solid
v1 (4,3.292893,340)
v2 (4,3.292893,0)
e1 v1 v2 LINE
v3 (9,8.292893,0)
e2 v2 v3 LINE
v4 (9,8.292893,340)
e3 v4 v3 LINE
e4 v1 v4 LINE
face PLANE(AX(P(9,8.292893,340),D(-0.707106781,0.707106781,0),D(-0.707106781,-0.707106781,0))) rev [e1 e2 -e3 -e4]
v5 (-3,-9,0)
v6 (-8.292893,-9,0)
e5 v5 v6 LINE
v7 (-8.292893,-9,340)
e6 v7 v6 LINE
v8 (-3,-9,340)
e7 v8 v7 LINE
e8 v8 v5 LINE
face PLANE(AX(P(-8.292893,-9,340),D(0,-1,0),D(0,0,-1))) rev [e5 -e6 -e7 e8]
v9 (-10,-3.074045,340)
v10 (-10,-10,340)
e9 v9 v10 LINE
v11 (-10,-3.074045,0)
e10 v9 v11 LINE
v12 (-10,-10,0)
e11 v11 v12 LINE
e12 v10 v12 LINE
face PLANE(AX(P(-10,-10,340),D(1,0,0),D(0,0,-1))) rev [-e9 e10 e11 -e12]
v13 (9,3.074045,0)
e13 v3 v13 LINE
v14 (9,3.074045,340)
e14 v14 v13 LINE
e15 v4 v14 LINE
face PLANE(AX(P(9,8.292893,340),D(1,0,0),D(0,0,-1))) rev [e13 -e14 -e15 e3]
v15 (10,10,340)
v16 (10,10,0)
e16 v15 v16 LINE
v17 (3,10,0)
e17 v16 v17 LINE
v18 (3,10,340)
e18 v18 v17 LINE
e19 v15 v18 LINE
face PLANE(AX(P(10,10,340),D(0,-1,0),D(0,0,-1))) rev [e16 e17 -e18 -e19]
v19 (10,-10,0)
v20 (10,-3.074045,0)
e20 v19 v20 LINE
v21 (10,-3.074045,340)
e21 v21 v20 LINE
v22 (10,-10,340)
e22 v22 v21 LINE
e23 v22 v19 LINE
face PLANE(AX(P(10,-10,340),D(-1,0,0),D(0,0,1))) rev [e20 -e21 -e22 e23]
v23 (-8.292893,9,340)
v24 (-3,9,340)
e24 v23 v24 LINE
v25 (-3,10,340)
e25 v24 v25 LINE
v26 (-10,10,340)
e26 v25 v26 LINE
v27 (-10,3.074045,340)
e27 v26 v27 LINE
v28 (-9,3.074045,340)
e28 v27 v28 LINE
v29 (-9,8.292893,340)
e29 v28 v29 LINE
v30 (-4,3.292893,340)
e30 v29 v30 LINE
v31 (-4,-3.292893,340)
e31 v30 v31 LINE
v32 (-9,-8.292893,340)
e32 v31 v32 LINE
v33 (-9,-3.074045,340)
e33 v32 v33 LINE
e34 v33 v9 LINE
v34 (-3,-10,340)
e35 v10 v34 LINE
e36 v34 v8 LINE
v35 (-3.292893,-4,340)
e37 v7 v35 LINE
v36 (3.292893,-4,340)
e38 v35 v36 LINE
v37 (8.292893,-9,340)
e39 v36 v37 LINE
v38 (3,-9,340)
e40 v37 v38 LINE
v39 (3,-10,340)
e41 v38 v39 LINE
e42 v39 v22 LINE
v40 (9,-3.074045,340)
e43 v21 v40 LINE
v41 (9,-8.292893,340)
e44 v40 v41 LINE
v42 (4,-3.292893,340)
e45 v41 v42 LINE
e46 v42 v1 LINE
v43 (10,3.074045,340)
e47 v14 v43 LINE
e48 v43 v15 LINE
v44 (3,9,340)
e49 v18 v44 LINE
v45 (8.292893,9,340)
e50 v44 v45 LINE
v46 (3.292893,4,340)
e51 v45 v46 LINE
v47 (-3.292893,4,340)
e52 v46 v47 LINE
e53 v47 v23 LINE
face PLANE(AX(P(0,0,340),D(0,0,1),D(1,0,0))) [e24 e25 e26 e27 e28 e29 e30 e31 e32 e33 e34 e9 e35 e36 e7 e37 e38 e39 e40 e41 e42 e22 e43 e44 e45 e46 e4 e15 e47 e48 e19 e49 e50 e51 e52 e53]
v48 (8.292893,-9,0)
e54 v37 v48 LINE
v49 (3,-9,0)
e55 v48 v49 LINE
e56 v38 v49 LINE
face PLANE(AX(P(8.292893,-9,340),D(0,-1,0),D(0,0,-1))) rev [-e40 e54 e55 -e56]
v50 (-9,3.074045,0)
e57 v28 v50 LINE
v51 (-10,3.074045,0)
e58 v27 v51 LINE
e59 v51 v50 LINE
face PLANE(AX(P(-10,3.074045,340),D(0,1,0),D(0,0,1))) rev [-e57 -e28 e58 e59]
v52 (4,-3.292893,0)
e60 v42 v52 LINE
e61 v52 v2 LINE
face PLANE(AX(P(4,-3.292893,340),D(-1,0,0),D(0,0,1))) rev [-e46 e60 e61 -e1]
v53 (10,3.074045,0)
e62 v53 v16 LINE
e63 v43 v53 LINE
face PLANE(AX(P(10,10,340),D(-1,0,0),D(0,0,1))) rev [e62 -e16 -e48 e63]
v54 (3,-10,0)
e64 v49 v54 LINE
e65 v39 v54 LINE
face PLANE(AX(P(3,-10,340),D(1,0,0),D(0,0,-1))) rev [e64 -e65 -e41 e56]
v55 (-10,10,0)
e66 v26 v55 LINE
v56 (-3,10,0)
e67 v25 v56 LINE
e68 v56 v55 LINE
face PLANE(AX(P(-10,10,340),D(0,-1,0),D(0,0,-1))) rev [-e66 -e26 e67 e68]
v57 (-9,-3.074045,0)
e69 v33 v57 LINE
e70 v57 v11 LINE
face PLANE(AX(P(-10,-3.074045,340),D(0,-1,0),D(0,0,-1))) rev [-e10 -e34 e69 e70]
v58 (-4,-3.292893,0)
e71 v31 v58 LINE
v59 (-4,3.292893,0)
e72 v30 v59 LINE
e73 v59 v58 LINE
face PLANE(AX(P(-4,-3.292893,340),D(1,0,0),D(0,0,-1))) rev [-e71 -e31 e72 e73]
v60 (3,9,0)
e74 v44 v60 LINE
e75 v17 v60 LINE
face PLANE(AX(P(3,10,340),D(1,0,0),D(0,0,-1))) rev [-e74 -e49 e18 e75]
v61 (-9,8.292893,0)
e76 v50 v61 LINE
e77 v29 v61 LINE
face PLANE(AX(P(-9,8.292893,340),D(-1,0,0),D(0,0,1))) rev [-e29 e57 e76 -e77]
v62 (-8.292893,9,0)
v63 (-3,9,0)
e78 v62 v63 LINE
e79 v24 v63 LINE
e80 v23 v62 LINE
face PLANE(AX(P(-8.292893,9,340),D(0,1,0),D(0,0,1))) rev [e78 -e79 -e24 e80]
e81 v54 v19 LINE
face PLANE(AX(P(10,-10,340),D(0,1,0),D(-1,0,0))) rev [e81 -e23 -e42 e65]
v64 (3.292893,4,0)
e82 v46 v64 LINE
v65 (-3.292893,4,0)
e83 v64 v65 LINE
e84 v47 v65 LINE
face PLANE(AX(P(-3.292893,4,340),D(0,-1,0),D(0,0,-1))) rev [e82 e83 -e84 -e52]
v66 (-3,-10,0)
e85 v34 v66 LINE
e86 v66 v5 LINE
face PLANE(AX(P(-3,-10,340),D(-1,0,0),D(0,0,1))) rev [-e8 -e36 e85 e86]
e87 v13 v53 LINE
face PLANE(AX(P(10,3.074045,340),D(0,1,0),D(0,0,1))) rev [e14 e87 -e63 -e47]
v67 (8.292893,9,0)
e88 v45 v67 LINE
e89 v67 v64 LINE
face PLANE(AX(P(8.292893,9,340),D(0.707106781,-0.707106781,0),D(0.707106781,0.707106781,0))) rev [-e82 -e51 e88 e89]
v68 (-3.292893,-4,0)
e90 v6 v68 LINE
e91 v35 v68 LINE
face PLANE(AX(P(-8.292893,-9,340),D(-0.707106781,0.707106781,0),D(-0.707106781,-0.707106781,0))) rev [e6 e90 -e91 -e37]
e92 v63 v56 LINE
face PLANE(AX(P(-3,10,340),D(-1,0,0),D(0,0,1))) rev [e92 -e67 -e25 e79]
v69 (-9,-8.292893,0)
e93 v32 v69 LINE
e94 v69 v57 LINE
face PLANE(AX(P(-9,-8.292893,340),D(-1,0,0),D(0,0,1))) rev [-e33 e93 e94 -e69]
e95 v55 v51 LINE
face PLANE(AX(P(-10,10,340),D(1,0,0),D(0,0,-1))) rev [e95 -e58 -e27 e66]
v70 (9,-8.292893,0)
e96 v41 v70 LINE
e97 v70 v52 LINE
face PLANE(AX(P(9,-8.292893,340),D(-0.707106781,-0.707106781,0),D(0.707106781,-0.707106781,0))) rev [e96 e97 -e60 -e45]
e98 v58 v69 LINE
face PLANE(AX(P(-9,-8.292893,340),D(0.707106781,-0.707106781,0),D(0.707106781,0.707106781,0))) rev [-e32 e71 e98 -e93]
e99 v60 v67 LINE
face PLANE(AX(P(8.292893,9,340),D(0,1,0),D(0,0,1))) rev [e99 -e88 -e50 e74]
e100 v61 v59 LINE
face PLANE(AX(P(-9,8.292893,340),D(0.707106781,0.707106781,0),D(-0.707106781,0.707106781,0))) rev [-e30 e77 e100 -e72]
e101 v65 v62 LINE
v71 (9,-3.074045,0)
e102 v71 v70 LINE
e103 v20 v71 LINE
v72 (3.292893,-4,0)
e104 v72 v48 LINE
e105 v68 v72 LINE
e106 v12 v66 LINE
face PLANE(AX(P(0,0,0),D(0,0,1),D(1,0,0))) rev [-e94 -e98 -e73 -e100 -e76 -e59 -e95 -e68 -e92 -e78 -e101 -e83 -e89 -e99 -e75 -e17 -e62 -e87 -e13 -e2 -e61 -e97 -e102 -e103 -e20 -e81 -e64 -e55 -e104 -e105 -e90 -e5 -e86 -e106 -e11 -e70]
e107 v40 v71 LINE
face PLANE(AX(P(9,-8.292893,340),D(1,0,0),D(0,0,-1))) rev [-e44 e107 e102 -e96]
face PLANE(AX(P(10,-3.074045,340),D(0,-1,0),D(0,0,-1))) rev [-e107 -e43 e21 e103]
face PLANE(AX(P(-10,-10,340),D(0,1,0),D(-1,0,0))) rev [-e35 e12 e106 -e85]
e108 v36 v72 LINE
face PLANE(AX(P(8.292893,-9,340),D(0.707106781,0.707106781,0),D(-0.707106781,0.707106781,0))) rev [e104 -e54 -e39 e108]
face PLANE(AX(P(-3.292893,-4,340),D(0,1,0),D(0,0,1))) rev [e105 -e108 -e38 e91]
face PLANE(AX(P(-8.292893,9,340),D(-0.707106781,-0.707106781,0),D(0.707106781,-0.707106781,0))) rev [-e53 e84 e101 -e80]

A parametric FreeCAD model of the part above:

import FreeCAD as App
import Part
import Sketcher
from FreeCAD import Vector

doc = App.newDocument("Part")
body = doc.addObject("PartDesign::Body", "Body")

sketch1 = body.newObject("Sketcher::SketchObject", "Sketch")
sketch1.AttachmentSupport = (doc.getObject("XY_Plane"), [""])
sketch1.MapMode = "FlatFace"
sketch1.addGeometry(Part.LineSegment(Vector(-3, 10, 0), Vector(-10, 10, 0)), False)
sketch1.addGeometry(Part.LineSegment(Vector(-10, 10, 0), Vector(-10, 3.1, 0)), False)
sketch1.addGeometry(Part.LineSegment(Vector(-10, 3.1, 0), Vector(-9, 3.1, 0)), False)
sketch1.addGeometry(Part.LineSegment(Vector(-9, 3.1, 0), Vector(-9, 8.3, 0)), False)
sketch1.addGeometry(Part.LineSegment(Vector(-9, 8.3, 0), Vector(-4, 3.3, 0)), False)
sketch1.addGeometry(Part.LineSegment(Vector(-4, 3.3, 0), Vector(-4, -3.3, 0)), False)
sketch1.addGeometry(Part.LineSegment(Vector(-4, -3.3, 0), Vector(-9, -8.3, 0)), False)
sketch1.addGeometry(Part.LineSegment(Vector(-9, -8.3, 0), Vector(-9, -3.1, 0)), False)
sketch1.addGeometry(Part.LineSegment(Vector(-9, -3.1, 0), Vector(-10, -3.1, 0)), False)
sketch1.addGeometry(Part.LineSegment(Vector(-10, -3.1, 0), Vector(-10, -10, 0)), False)
sketch1.addGeometry(Part.LineSegment(Vector(-10, -10, 0), Vector(-3, -10, 0)), False)
sketch1.addGeometry(Part.LineSegment(Vector(-3, -10, 0), Vector(-3, -9, 0)), False)
sketch1.addGeometry(Part.LineSegment(Vector(-3, -9, 0), Vector(-8.3, -9, 0)), False)
sketch1.addGeometry(Part.LineSegment(Vector(-8.3, -9, 0), Vector(-3.3, -4, 0)), False)
sketch1.addGeometry(Part.LineSegment(Vector(-3.3, -4, 0), Vector(3.3, -4, 0)), False)
sketch1.addGeometry(Part.LineSegment(Vector(3.3, -4, 0), Vector(8.3, -9, 0)), False)
sketch1.addGeometry(Part.LineSegment(Vector(8.3, -9, 0), Vector(3, -9, 0)), False)
sketch1.addGeometry(Part.LineSegment(Vector(3, -9, 0), Vector(3, -10, 0)), False)
sketch1.addGeometry(Part.LineSegment(Vector(3, -10, 0), Vector(10, -10, 0)), False)
sketch1.addGeometry(Part.LineSegment(Vector(10, -10, 0), Vector(10, -3.1, 0)), False)
sketch1.addGeometry(Part.LineSegment(Vector(10, -3.1, 0), Vector(9, -3.1, 0)), False)
sketch1.addGeometry(Part.LineSegment(Vector(9, -3.1, 0), Vector(9, -8.3, 0)), False)
sketch1.addGeometry(Part.LineSegment(Vector(9, -8.3, 0), Vector(4, -3.3, 0)), False)
sketch1.addGeometry(Part.LineSegment(Vector(4, -3.3, 0), Vector(4, 3.3, 0)), False)
sketch1.addGeometry(Part.LineSegment(Vector(4, 3.3, 0), Vector(9, 8.3, 0)), False)
sketch1.addGeometry(Part.LineSegment(Vector(9, 8.3, 0), Vector(9, 3.1, 0)), False)
sketch1.addGeometry(Part.LineSegment(Vector(9, 3.1, 0), Vector(10, 3.1, 0)), False)
sketch1.addGeometry(Part.LineSegment(Vector(10, 3.1, 0), Vector(10, 10, 0)), False)
sketch1.addGeometry(Part.LineSegment(Vector(10, 10, 0), Vector(3, 10, 0)), False)
sketch1.addGeometry(Part.LineSegment(Vector(3, 10, 0), Vector(3, 9, 0)), False)
sketch1.addGeometry(Part.LineSegment(Vector(3, 9, 0), Vector(8.3, 9, 0)), False)
sketch1.addGeometry(Part.LineSegment(Vector(8.3, 9, 0), Vector(3.3, 4, 0)), False)
sketch1.addGeometry(Part.LineSegment(Vector(3.3, 4, 0), Vector(-3.3, 4, 0)), False)
sketch1.addGeometry(Part.LineSegment(Vector(-3.3, 4, 0), Vector(-8.3, 9, 0)), False)
sketch1.addGeometry(Part.LineSegment(Vector(-8.3, 9, 0), Vector(-3, 9, 0)), False)
sketch1.addGeometry(Part.LineSegment(Vector(-3, 9, 0), Vector(-3, 10, 0)), False)
sketch1.addConstraint(Sketcher.Constraint("Coincident", 0, 2, 1, 1))
sketch1.addConstraint(Sketcher.Constraint("Coincident", 1, 2, 2, 1))
sketch1.addConstraint(Sketcher.Constraint("Coincident", 2, 2, 3, 1))
sketch1.addConstraint(Sketcher.Constraint("Coincident", 3, 2, 4, 1))
sketch1.addConstraint(Sketcher.Constraint("Coincident", 4, 2, 5, 1))
sketch1.addConstraint(Sketcher.Constraint("Coincident", 5, 2, 6, 1))
sketch1.addConstraint(Sketcher.Constraint("Coincident", 6, 2, 7, 1))
sketch1.addConstraint(Sketcher.Constraint("Coincident", 7, 2, 8, 1))
sketch1.addConstraint(Sketcher.Constraint("Coincident", 8, 2, 9, 1))
sketch1.addConstraint(Sketcher.Constraint("Coincident", 9, 2, 10, 1))
sketch1.addConstraint(Sketcher.Constraint("Coincident", 10, 2, 11, 1))
sketch1.addConstraint(Sketcher.Constraint("Coincident", 11, 2, 12, 1))
sketch1.addConstraint(Sketcher.Constraint("Coincident", 12, 2, 13, 1))
sketch1.addConstraint(Sketcher.Constraint("Coincident", 13, 2, 14, 1))
sketch1.addConstraint(Sketcher.Constraint("Coincident", 14, 2, 15, 1))
sketch1.addConstraint(Sketcher.Constraint("Coincident", 15, 2, 16, 1))
sketch1.addConstraint(Sketcher.Constraint("Coincident", 16, 2, 17, 1))
sketch1.addConstraint(Sketcher.Constraint("Coincident", 17, 2, 18, 1))
sketch1.addConstraint(Sketcher.Constraint("Coincident", 18, 2, 19, 1))
sketch1.addConstraint(Sketcher.Constraint("Coincident", 19, 2, 20, 1))
sketch1.addConstraint(Sketcher.Constraint("Coincident", 20, 2, 21, 1))
sketch1.addConstraint(Sketcher.Constraint("Coincident", 21, 2, 22, 1))
sketch1.addConstraint(Sketcher.Constraint("Coincident", 22, 2, 23, 1))
sketch1.addConstraint(Sketcher.Constraint("Coincident", 23, 2, 24, 1))
sketch1.addConstraint(Sketcher.Constraint("Coincident", 24, 2, 25, 1))
sketch1.addConstraint(Sketcher.Constraint("Coincident", 25, 2, 26, 1))
sketch1.addConstraint(Sketcher.Constraint("Coincident", 26, 2, 27, 1))
sketch1.addConstraint(Sketcher.Constraint("Coincident", 27, 2, 28, 1))
sketch1.addConstraint(Sketcher.Constraint("Coincident", 28, 2, 29, 1))
sketch1.addConstraint(Sketcher.Constraint("Coincident", 29, 2, 30, 1))
sketch1.addConstraint(Sketcher.Constraint("Coincident", 30, 2, 31, 1))
sketch1.addConstraint(Sketcher.Constraint("Coincident", 31, 2, 32, 1))
sketch1.addConstraint(Sketcher.Constraint("Coincident", 32, 2, 33, 1))
sketch1.addConstraint(Sketcher.Constraint("Coincident", 33, 2, 34, 1))
sketch1.addConstraint(Sketcher.Constraint("Coincident", 34, 2, 35, 1))
sketch1.addConstraint(Sketcher.Constraint("Coincident", 35, 2, 0, 1))
sketch1.addConstraint(Sketcher.Constraint("Horizontal", 0))
sketch1.addConstraint(Sketcher.Constraint("Vertical", 1))
sketch1.addConstraint(Sketcher.Constraint("Horizontal", 2))
sketch1.addConstraint(Sketcher.Constraint("Vertical", 3))
sketch1.addConstraint(Sketcher.Constraint("Vertical", 5))
sketch1.addConstraint(Sketcher.Constraint("Vertical", 7))
sketch1.addConstraint(Sketcher.Constraint("Horizontal", 8))
sketch1.addConstraint(Sketcher.Constraint("Vertical", 9))
sketch1.addConstraint(Sketcher.Constraint("Horizontal", 10))
sketch1.addConstraint(Sketcher.Constraint("Vertical", 11))
sketch1.addConstraint(Sketcher.Constraint("Horizontal", 12))
sketch1.addConstraint(Sketcher.Constraint("Horizontal", 14))
sketch1.addConstraint(Sketcher.Constraint("Horizontal", 16))
sketch1.addConstraint(Sketcher.Constraint("Vertical", 17))
sketch1.addConstraint(Sketcher.Constraint("Horizontal", 18))
sketch1.addConstraint(Sketcher.Constraint("Vertical", 19))
sketch1.addConstraint(Sketcher.Constraint("Horizontal", 20))
sketch1.addConstraint(Sketcher.Constraint("Vertical", 21))
sketch1.addConstraint(Sketcher.Constraint("Vertical", 23))
sketch1.addConstraint(Sketcher.Constraint("Vertical", 25))
sketch1.addConstraint(Sketcher.Constraint("Horizontal", 26))
sketch1.addConstraint(Sketcher.Constraint("Vertical", 27))
sketch1.addConstraint(Sketcher.Constraint("Horizontal", 28))
sketch1.addConstraint(Sketcher.Constraint("Vertical", 29))
sketch1.addConstraint(Sketcher.Constraint("Horizontal", 30))
sketch1.addConstraint(Sketcher.Constraint("Horizontal", 32))
sketch1.addConstraint(Sketcher.Constraint("Horizontal", 34))
sketch1.addConstraint(Sketcher.Constraint("Vertical", 35))
sketch1.addConstraint(Sketcher.Constraint("Symmetric", 0, 2, 18, 2, -1, 1))
sketch1.addConstraint(Sketcher.Constraint("Symmetric", 2, 2, 20, 2, -1, 1))
sketch1.addConstraint(Sketcher.Constraint("Symmetric", 4, 2, 22, 2, -1, 1))
sketch1.addConstraint(Sketcher.Constraint("Symmetric", 6, 2, 24, 2, -1, 1))
sketch1.addConstraint(Sketcher.Constraint("Symmetric", 8, 2, 26, 2, -1, 1))
sketch1.addConstraint(Sketcher.Constraint("Symmetric", 10, 2, 28, 2, -1, 1))
sketch1.addConstraint(Sketcher.Constraint("Symmetric", 12, 2, 30, 2, -1, 1))
sketch1.addConstraint(Sketcher.Constraint("Symmetric", 13, 2, 31, 2, -1, 1))
sketch1.addConstraint(Sketcher.Constraint("Symmetric", 15, 2, 33, 2, -1, 1))
sketch1.addConstraint(Sketcher.Constraint("Symmetric", 12, 2, 15, 2, -2))
sketch1.addConstraint(Sketcher.Constraint("Symmetric", 10, 2, 17, 2, -2))
sketch1.addConstraint(Sketcher.Constraint("Symmetric", 8, 2, 19, 2, -2))
sketch1.addConstraint(Sketcher.Constraint("Symmetric", 6, 2, 21, 2, -2))
sketch1.addConstraint(Sketcher.Constraint("Perpendicular", 4, 6))
sketch1.addConstraint(Sketcher.Constraint("Parallel", 6, 13))
sketch1.addConstraint(Sketcher.Constraint("Perpendicular", 13, 15))
sketch1.addConstraint(Sketcher.Constraint("Parallel", 15, 22))
sketch1.addConstraint(Sketcher.Constraint("Perpendicular", 22, 24))
sketch1.addConstraint(Sketcher.Constraint("Perpendicular", 31, 33))
sketch1.addConstraint(Sketcher.Constraint("Horizontal", 5, 2, 22, 2))
sketch1.addConstraint(Sketcher.Constraint("Vertical", 11, 2, 34, 2))
sketch1.addConstraint(Sketcher.Constraint("Equal", 32, 5))
sketch1.addConstraint(Sketcher.Constraint("Equal", 26, 11))
sketch1.addConstraint(Sketcher.Constraint("Equal", 6, 13))
sketch1.addConstraint(Sketcher.Constraint("DistanceX", 0, 2, 0, 1, 7.0))
sketch1.addConstraint(Sketcher.Constraint("DistanceX", 2, 1, 2, 2, 1.0))
sketch1.addConstraint(Sketcher.Constraint("DistanceX", 0, 2, -1, 1, 10.0))
sketch1.addConstraint(Sketcher.Constraint("DistanceY", -1, 1, 0, 2, 10.0))
sketch1.addConstraint(Sketcher.Constraint("DistanceX", 4, 2, -1, 1, 4.0))
sketch1.addConstraint(Sketcher.Constraint("DistanceY", 3, 1, 3, 2, 5.218849))
sketch1.addConstraint(Sketcher.Constraint("DistanceX", 12, 2, 12, 1, 5.292893))
pad1 = body.newObject("PartDesign::Pad", "Pad")
pad1.Profile = sketch1
pad1.Length = 340

doc.recompute()
